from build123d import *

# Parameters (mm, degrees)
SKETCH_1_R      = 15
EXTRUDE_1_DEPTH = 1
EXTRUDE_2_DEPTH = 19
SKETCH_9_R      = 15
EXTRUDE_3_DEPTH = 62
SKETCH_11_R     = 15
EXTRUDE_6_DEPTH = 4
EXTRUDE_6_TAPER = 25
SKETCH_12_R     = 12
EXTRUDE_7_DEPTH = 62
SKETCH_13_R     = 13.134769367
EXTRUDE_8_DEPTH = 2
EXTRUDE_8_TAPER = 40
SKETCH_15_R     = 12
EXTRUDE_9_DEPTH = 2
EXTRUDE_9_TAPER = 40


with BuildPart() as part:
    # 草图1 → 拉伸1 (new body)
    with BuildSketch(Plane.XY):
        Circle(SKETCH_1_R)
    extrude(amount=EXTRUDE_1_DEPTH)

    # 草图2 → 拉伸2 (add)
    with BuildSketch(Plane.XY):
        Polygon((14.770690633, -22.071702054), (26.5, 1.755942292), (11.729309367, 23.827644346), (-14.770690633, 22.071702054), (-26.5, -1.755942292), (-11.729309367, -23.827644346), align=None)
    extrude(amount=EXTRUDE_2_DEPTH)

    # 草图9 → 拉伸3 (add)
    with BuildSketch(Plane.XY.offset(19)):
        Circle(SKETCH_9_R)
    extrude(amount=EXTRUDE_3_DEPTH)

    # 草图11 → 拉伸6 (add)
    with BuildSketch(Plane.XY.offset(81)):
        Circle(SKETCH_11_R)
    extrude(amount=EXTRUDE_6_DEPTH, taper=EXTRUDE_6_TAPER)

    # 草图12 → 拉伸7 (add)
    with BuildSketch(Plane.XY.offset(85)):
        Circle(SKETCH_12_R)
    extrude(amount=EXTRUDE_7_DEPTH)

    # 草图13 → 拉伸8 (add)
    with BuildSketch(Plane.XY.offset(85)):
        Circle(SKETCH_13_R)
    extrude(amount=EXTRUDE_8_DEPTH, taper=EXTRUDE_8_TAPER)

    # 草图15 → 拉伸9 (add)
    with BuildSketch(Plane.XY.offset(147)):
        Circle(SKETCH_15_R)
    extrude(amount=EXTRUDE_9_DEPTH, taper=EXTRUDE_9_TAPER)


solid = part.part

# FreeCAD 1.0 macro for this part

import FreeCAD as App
import Part
import Sketcher

V = App.Vector
Q = App.Units.Quantity


def add_polygon(sketch, points):
    """Adds a closed chain of lines whose ends are joined by coincident constraints."""
    first, n = sketch.GeometryCount, len(points)
    for a, b in zip(points, points[1:] + points[:1]):
        sketch.addGeometry(Part.LineSegment(App.Vector(*a, 0), App.Vector(*b, 0)), False)
    for i in range(n):
        sketch.addConstraint(Sketcher.Constraint("Coincident", first + i, 2, first + (i + 1) % n, 1))

doc = App.newDocument("Part")
body = doc.addObject("PartDesign::Body", "Body")

# Sketch on XY plane
sketch1 = body.newObject("Sketcher::SketchObject", "Sketch")
sketch1.AttachmentSupport = (doc.getObject("XY_Plane"), [""])
sketch1.MapMode = "FlatFace"
sketch1.addGeometry(Part.Circle(V(0, 0, 0), V(0, 0, 1), 15), False)
sketch1.addConstraint(Sketcher.Constraint("Coincident", 0, 3, -1, 1))
sketch1.addConstraint(Sketcher.Constraint("Diameter", 0, Q("30 mm")))
pad1 = body.newObject("PartDesign::Pad", "Pad")
pad1.Profile = sketch1
pad1.Length = 1

# Sketch on XY plane
sketch2 = body.newObject("Sketcher::SketchObject", "Sketch001")
sketch2.AttachmentSupport = (doc.getObject("XY_Plane"), [""])
sketch2.MapMode = "FlatFace"
add_polygon(sketch2, [(15, -22), (26, 2), (12, 24), (-15, 22), (-26, -2), (-12, -24)])  # lines 0-5
sketch2.addConstraint(Sketcher.Constraint("Symmetric", 0, 2, 3, 2, -1, 1))
sketch2.addConstraint(Sketcher.Constraint("Symmetric", 1, 2, 4, 2, -1, 1))
sketch2.addConstraint(Sketcher.Constraint("Symmetric", 2, 2, 5, 2, -1, 1))
sketch2.addConstraint(Sketcher.Constraint("Equal", 0, 1))
sketch2.addConstraint(Sketcher.Constraint("Equal", 1, 2))
sketch2.addConstraint(Sketcher.Constraint("DistanceX", 3, 2, 0, 2, Q("53 mm")))
sketch2.addConstraint(Sketcher.Constraint("DistanceX", 2, 2, 1, 2, Q("26.5 mm")))
sketch2.addConstraint(Sketcher.Constraint("DistanceX", -1, 1, 1, 2, Q("11.729309 mm")))
sketch2.addConstraint(Sketcher.Constraint("DistanceY", 0, 2, 2, 2, Q("20.31576 mm")))
pad2 = body.newObject("PartDesign::Pad", "Pad001")
pad2.Profile = sketch2
pad2.Length = 19

# Sketch on XY plane
sketch3 = body.newObject("Sketcher::SketchObject", "Sketch002")
sketch3.AttachmentSupport = (doc.getObject("XY_Plane"), [""])
sketch3.MapMode = "FlatFace"
sketch3.AttachmentOffset = App.Placement(V(0, 0, 19), App.Rotation())
sketch3.addGeometry(Part.Circle(V(0, 0, 0), V(0, 0, 1), 15), False)
sketch3.addConstraint(Sketcher.Constraint("Coincident", 0, 3, -1, 1))
sketch3.addConstraint(Sketcher.Constraint("Diameter", 0, Q("30 mm")))
pad3 = body.newObject("PartDesign::Pad", "Pad002")
pad3.Profile = sketch3
pad3.Length = 62

# Sketch on XY plane
sketch4 = body.newObject("Sketcher::SketchObject", "Sketch003")
sketch4.AttachmentSupport = (doc.getObject("XY_Plane"), [""])
sketch4.MapMode = "FlatFace"
sketch4.AttachmentOffset = App.Placement(V(0, 0, 81), App.Rotation())
sketch4.addGeometry(Part.Circle(V(0, 0, 0), V(0, 0, 1), 15), False)
sketch4.addConstraint(Sketcher.Constraint("Coincident", 0, 3, -1, 1))
sketch4.addConstraint(Sketcher.Constraint("Diameter", 0, Q("30 mm")))
pad4 = body.newObject("PartDesign::Pad", "Pad003")
pad4.Profile = sketch4
pad4.Length = 4
pad4.TaperAngle = -25

# Sketch on XY plane
sketch5 = body.newObject("Sketcher::SketchObject", "Sketch004")
sketch5.AttachmentSupport = (doc.getObject("XY_Plane"), [""])
sketch5.MapMode = "FlatFace"
sketch5.AttachmentOffset = App.Placement(V(0, 0, 85), App.Rotation())
sketch5.addGeometry(Part.Circle(V(0, 0, 0), V(0, 0, 1), 12), False)
sketch5.addConstraint(Sketcher.Constraint("Coincident", 0, 3, -1, 1))
sketch5.addConstraint(Sketcher.Constraint("Diameter", 0, Q("24 mm")))
pad5 = body.newObject("PartDesign::Pad", "Pad004")
pad5.Profile = sketch5
pad5.Length = 62

# Sketch on XY plane
sketch6 = body.newObject("Sketcher::SketchObject", "Sketch005")
sketch6.AttachmentSupport = (doc.getObject("XY_Plane"), [""])
sketch6.MapMode = "FlatFace"
sketch6.AttachmentOffset = App.Placement(V(0, 0, 85), App.Rotation())
sketch6.addGeometry(Part.Circle(V(0, 0, 0), V(0, 0, 1), 13), False)
sketch6.addConstraint(Sketcher.Constraint("Coincident", 0, 3, -1, 1))
sketch6.addConstraint(Sketcher.Constraint("Diameter", 0, Q("26.269539 mm")))
pad6 = body.newObject("PartDesign::Pad", "Pad005")
pad6.Profile = sketch6
pad6.Length = 2
pad6.TaperAngle = -40

# Sketch on XY plane
sketch7 = body.newObject("Sketcher::SketchObject", "Sketch006")
sketch7.AttachmentSupport = (doc.getObject("XY_Plane"), [""])
sketch7.MapMode = "FlatFace"
sketch7.AttachmentOffset = App.Placement(V(0, 0, 147), App.Rotation())
sketch7.addGeometry(Part.Circle(V(0, 0, 0), V(0, 0, 1), 12), False)
sketch7.addConstraint(Sketcher.Constraint("Coincident", 0, 3, -1, 1))
sketch7.addConstraint(Sketcher.Constraint("Diameter", 0, Q("24 mm")))
pad7 = body.newObject("PartDesign::Pad", "Pad006")
pad7.Profile = sketch7
pad7.Length = 2
pad7.TaperAngle = -40

doc.recompute()
